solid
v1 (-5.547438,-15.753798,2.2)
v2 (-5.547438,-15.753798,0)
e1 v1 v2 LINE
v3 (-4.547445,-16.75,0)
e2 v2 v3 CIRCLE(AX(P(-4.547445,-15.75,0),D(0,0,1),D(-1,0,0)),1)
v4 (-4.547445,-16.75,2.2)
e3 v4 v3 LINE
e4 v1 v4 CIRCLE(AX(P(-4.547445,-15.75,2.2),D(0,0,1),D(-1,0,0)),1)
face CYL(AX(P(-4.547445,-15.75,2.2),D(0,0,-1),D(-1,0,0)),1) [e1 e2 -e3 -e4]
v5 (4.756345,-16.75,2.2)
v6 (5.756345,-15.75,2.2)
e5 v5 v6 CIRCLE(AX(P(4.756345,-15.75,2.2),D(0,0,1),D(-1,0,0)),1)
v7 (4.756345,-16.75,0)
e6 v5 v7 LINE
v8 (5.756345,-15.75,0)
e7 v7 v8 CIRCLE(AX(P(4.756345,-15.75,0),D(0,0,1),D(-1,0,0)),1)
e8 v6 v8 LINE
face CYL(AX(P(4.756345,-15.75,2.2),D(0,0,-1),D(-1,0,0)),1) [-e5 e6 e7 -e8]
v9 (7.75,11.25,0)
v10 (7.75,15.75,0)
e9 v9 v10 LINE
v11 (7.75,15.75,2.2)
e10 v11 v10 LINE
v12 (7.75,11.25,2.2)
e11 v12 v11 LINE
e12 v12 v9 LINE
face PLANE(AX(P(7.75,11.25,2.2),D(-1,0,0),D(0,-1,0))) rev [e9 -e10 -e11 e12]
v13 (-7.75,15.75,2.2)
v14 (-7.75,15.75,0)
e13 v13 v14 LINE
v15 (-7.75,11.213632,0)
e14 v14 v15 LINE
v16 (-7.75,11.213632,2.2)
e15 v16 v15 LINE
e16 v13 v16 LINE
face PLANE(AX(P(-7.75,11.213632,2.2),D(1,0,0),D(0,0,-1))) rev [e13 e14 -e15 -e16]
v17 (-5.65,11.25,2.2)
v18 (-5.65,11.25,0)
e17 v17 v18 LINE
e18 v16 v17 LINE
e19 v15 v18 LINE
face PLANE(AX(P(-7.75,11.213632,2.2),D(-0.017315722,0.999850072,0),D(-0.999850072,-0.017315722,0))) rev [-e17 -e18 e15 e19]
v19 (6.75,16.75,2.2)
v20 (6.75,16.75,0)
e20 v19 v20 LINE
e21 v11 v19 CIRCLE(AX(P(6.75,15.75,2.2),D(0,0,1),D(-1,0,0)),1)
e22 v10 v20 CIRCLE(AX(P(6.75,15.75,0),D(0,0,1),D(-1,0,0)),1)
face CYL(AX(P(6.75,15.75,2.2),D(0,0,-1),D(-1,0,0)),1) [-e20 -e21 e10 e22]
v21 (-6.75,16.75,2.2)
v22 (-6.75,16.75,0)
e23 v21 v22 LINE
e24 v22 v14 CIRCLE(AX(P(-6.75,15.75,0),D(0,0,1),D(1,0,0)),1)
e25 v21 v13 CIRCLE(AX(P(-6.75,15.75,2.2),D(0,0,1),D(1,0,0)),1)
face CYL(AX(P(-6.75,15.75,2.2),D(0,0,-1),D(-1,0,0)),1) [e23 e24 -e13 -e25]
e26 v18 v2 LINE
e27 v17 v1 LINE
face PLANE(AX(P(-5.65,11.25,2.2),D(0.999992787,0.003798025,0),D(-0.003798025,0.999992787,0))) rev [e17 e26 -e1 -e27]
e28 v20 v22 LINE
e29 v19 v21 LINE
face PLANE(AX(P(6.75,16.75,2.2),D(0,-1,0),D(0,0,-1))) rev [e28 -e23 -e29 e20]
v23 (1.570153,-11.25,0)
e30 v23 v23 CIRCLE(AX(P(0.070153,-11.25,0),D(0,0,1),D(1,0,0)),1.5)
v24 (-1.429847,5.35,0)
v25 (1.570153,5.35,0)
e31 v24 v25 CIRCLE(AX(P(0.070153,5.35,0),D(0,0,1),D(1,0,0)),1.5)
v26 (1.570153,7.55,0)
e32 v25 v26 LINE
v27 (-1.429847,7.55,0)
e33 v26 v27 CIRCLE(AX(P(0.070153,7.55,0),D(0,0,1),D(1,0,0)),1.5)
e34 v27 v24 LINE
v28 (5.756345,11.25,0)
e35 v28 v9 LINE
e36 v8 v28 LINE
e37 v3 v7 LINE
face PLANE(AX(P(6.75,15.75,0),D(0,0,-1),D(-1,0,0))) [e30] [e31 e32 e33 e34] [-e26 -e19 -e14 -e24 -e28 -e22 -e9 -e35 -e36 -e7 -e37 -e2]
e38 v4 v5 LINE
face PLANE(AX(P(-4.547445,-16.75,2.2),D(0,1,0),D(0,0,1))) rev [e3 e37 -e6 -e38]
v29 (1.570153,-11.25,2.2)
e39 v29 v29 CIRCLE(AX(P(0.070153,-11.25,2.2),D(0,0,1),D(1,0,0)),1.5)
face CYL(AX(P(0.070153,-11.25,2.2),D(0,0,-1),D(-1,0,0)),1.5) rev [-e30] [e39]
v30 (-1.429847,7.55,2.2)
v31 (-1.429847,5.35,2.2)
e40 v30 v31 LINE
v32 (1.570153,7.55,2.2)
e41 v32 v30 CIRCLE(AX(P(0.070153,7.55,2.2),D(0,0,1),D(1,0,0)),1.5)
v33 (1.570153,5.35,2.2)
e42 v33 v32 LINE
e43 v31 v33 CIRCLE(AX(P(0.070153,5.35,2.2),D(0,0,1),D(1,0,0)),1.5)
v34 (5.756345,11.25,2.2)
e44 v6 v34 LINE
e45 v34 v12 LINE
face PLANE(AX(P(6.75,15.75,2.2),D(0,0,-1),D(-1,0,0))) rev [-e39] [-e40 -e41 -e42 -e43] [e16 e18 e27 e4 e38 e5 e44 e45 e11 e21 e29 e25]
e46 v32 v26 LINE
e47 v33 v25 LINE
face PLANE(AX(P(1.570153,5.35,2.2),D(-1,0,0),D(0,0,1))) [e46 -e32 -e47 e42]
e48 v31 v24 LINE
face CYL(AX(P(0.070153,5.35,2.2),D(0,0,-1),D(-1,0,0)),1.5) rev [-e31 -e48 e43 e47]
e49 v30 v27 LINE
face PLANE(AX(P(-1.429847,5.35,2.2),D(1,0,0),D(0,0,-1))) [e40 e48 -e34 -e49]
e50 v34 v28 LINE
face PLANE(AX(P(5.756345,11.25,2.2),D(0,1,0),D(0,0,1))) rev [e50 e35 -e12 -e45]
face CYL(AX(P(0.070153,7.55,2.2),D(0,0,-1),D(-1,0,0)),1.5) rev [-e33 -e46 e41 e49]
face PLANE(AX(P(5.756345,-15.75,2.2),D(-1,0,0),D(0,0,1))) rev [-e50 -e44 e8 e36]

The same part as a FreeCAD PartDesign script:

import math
import FreeCAD as App
import Part
import Sketcher
from FreeCAD import Vector
Q = App.Units.Quantity

doc = App.newDocument("Part")
body = doc.addObject("PartDesign::Body", "Body")

# Sketch on XY plane
sketch1 = body.newObject("Sketcher::SketchObject", "Sketch")
sketch1.AttachmentSupport = (doc.getObject("XY_Plane"), [""])
sketch1.MapMode = "FlatFace"
sketch1.addGeometry(Part.LineSegment(Vector(-4.5, -16.8, 0), Vector(4.8, -16.8, 0)), False)
sketch1.addGeometry(Part.ArcOfCircle(Part.Circle(Vector(4.8, -15.7, 0), Vector(0, 0, 1), 1), math.radians(-90), math.radians(0)), False)
sketch1.addGeometry(Part.LineSegment(Vector(5.8, -15.8, 0), Vector(5.8, 11.2, 0)), False)
sketch1.addGeometry(Part.LineSegment(Vector(5.8, 11.2, 0), Vector(7.8, 11.2, 0)), False)
sketch1.addGeometry(Part.LineSegment(Vector(7.8, 11.2, 0), Vector(7.8, 15.8, 0)), False)
sketch1.addGeometry(Part.ArcOfCircle(Part.Circle(Vector(6.7, 15.7, 0), Vector(0, 0, 1), 1), math.radians(0), math.radians(90)), False)
sketch1.addGeometry(Part.LineSegment(Vector(6.8, 16.8, 0), Vector(-6.8, 16.8, 0)), False)
sketch1.addGeometry(Part.ArcOfCircle(Part.Circle(Vector(-6.7, 15.7, 0), Vector(0, 0, 1), 1), math.radians(90), math.radians(180)), False)
sketch1.addGeometry(Part.LineSegment(Vector(-7.8, 15.8, 0), Vector(-7.8, 11.2, 0)), False)
sketch1.addGeometry(Part.LineSegment(Vector(-7.8, 11.2, 0), Vector(-5.7, 11.2, 0)), False)
sketch1.addGeometry(Part.LineSegment(Vector(-5.7, 11.2, 0), Vector(-5.5, -15.8, 0)), False)
sketch1.addGeometry(Part.ArcOfCircle(Part.Circle(Vector(-4.5, -15.7, 0), Vector(0, 0, 1), 1), math.radians(-180), math.radians(-90)), False)
sketch1.addGeometry(Part.Circle(Vector(0.1, -11.2, 0), Vector(0, 0, 1), 1.5), False)
sketch1.addGeometry(Part.ArcOfCircle(Part.Circle(Vector(0.1, 5.3, 0), Vector(0, 0, 1), 1.5), math.radians(180), math.radians(360)), False)
sketch1.addGeometry(Part.LineSegment(Vector(-1.4, 5.3, 0), Vector(-1.4, 7.5, 0)), False)
sketch1.addGeometry(Part.ArcOfCircle(Part.Circle(Vector(0.1, 7.5, 0), Vector(0, 0, 1), 1.5), math.radians(0), math.radians(180)), False)
sketch1.addGeometry(Part.LineSegment(Vector(1.6, 7.5, 0), Vector(1.6, 5.3, 0)), False)
sketch1.addConstraint(Sketcher.Constraint("Tangent", 0, 2, 1, 1))
sketch1.addConstraint(Sketcher.Constraint("Tangent", 1, 2, 2, 1))
sketch1.addConstraint(Sketcher.Constraint("Coincident", 2, 2, 3, 1))
sketch1.addConstraint(Sketcher.Constraint("Coincident", 3, 2, 4, 1))
sketch1.addConstraint(Sketcher.Constraint("Tangent", 4, 2, 5, 1))
sketch1.addConstraint(Sketcher.Constraint("Tangent", 5, 2, 6, 1))
sketch1.addConstraint(Sketcher.Constraint("Tangent", 6, 2, 7, 1))
sketch1.addConstraint(Sketcher.Constraint("Tangent", 7, 2, 8, 1))
sketch1.addConstraint(Sketcher.Constraint("Coincident", 8, 2, 9, 1))
sketch1.addConstraint(Sketcher.Constraint("Coincident", 9, 2, 10, 1))
sketch1.addConstraint(Sketcher.Constraint("Tangent", 10, 2, 11, 1))
sketch1.addConstraint(Sketcher.Constraint("Tangent", 11, 2, 0, 1))
sketch1.addConstraint(Sketcher.Constraint("Tangent", 13, 1, 14, 1))
sketch1.addConstraint(Sketcher.Constraint("Tangent", 14, 2, 15, 2))
sketch1.addConstraint(Sketcher.Constraint("Tangent", 15, 1, 16, 1))
sketch1.addConstraint(Sketcher.Constraint("Tangent", 16, 2, 13, 2))
sketch1.addConstraint(Sketcher.Constraint("Horizontal", 0))
sketch1.addConstraint(Sketcher.Constraint("Vertical", 2))
sketch1.addConstraint(Sketcher.Constraint("Horizontal", 3))
sketch1.addConstraint(Sketcher.Constraint("Vertical", 4))
sketch1.addConstraint(Sketcher.Constraint("Horizontal", 6))
sketch1.addConstraint(Sketcher.Constraint("Vertical", 8))
sketch1.addConstraint(Sketcher.Constraint("Vertical", 14))
sketch1.addConstraint(Sketcher.Constraint("Vertical", 16))
sketch1.addConstraint(Sketcher.Constraint("Equal", 1, 5))
sketch1.addConstraint(Sketcher.Constraint("Equal", 5, 7))
sketch1.addConstraint(Sketcher.Constraint("Equal", 7, 11))
sketch1.addConstraint(Sketcher.Constraint("Equal", 12, 13))
sketch1.addConstraint(Sketcher.Constraint("Horizontal", 3, 2, 9, 2))
sketch1.addConstraint(Sketcher.Constraint("Vertical", 12, 3, 13, 3))
sketch1.addConstraint(Sketcher.Constraint("Diameter", 12, Q("3 mm")))
sketch1.addConstraint(Sketcher.Constraint("Radius", 1, Q("1 mm")))
sketch1.addConstraint(Sketcher.Constraint("DistanceY", 2, 1, 2, 2, Q("27 mm")))
sketch1.addConstraint(Sketcher.Constraint("DistanceX", 6, 2, 6, 1, Q("13.5 mm")))
sketch1.addConstraint(Sketcher.Constraint("DistanceY", 4, 1, 4, 2, Q("4.5 mm")))
sketch1.addConstraint(Sketcher.Constraint("DistanceY", 14, 1, 14, 2, Q("2.2 mm")))
sketch1.addConstraint(Sketcher.Constraint("DistanceY", 12, 3, 5, 3, Q("27 mm")))
sketch1.addConstraint(Sketcher.Constraint("DistanceY", 13, 3, 5, 3, Q("10.4 mm")))
sketch1.addConstraint(Sketcher.Constraint("DistanceX", 8, 2, 9, 2, Q("2.1 mm")))
sketch1.addConstraint(Sketcher.Constraint("DistanceY", 1, 3, -1, 1, Q("15.75 mm")))
sketch1.addConstraint(Sketcher.Constraint("DistanceX", -1, 1, 5, 3, Q("6.75 mm")))
sketch1.addConstraint(Sketcher.Constraint("DistanceX", 0, 1, 0, 2, Q("9.303791 mm")))
sketch1.addConstraint(Sketcher.Constraint("DistanceY", 8, 2, 8, 1, Q("4.536368 mm")))
sketch1.addConstraint(Sketcher.Constraint("DistanceY", 10, 2, -1, 1, Q("15.753798 mm")))
sketch1.addConstraint(Sketcher.Constraint("DistanceX", 11, 3, 12, 3, Q("4.617598 mm")))
pad1 = body.newObject("PartDesign::Pad", "Pad")
pad1.Profile = sketch1
pad1.Length = 2.2

doc.recompute()
